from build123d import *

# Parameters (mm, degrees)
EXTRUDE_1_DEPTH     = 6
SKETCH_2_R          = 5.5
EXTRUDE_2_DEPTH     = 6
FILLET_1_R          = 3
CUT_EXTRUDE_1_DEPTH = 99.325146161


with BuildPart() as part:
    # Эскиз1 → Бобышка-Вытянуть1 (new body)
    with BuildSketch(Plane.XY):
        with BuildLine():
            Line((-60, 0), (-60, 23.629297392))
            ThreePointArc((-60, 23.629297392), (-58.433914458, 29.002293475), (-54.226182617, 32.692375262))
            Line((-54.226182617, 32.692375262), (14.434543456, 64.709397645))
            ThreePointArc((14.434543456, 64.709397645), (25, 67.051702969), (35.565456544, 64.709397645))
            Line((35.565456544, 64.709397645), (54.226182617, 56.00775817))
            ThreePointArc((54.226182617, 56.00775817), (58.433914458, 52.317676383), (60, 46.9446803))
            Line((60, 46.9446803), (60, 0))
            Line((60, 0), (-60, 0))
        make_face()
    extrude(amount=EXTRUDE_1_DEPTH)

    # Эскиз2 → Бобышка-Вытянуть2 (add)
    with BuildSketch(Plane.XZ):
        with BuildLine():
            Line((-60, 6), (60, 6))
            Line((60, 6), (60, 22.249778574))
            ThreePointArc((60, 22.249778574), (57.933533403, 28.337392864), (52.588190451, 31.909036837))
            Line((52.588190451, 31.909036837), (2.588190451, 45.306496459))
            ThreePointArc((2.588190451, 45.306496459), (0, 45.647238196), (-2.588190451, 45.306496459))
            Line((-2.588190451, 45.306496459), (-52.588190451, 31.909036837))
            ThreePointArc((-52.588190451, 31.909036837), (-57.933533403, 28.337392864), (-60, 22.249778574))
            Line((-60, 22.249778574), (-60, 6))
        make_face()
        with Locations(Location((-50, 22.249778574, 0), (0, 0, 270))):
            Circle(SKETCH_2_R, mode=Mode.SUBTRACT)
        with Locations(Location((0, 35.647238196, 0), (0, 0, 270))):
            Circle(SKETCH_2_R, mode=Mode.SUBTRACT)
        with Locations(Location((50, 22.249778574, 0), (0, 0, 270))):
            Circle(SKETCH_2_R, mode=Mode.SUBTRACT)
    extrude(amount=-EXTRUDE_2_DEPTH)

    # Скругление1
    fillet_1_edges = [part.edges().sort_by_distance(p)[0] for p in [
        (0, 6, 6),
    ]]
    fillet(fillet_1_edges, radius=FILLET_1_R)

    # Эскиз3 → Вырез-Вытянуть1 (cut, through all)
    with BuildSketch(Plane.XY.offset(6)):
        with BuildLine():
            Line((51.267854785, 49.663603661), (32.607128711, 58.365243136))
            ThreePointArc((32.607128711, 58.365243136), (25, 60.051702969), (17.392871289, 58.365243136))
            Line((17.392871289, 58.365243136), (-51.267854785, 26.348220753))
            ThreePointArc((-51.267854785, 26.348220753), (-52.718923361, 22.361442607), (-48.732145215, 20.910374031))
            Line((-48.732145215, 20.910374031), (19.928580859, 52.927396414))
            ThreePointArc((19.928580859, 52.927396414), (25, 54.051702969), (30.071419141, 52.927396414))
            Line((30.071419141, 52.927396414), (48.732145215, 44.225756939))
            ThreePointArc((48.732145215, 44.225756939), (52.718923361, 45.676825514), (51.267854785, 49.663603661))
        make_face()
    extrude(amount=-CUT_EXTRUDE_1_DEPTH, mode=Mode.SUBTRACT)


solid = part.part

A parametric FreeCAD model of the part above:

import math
import FreeCAD as App
import Part
import Sketcher
from FreeCAD import Vector
Q = App.Units.Quantity


def edges_at(feature, points):
    """Names of the edges that pass closest to the given points."""
    edges = feature.Shape.Edges
    near = lambda p: min(range(len(edges)), key=lambda i: edges[i].distToShape(Part.Vertex(*p))[0])
    return sorted({f"Edge{near(p) + 1}" for p in points})

doc = App.newDocument("Part")
body = doc.addObject("PartDesign::Body", "Body")

# Sketch on XY plane
sketch1 = body.newObject("Sketcher::SketchObject", "Sketch")
sketch1.AttachmentSupport = (doc.getObject("XY_Plane"), [""])
sketch1.MapMode = "FlatFace"
sketch1.addGeometry(Part.LineSegment(Vector(-60, 23.629297, 0), Vector(-60, 0, 0)), False)
sketch1.addGeometry(Part.LineSegment(Vector(-60, 0, 0), Vector(60, 0, 0)), False)
sketch1.addGeometry(Part.LineSegment(Vector(60, 0, 0), Vector(60, 46.94468, 0)), False)
sketch1.addGeometry(Part.ArcOfCircle(Part.Circle(Vector(50, 46.94468, 0), Vector(0, 0, 1), 10), math.radians(0), math.radians(65)), False)
sketch1.addGeometry(Part.LineSegment(Vector(54.226183, 56.007758, 0), Vector(35.565457, 64.709398, 0)), False)
sketch1.addGeometry(Part.ArcOfCircle(Part.Circle(Vector(25, 42.051703, 0), Vector(0, 0, 1), 25), math.radians(65), math.radians(115)), False)
sketch1.addGeometry(Part.LineSegment(Vector(14.434543, 64.709398, 0), Vector(-54.226183, 32.692375, 0)), False)
sketch1.addGeometry(Part.ArcOfCircle(Part.Circle(Vector(-50, 23.629297, 0), Vector(0, 0, 1), 10), math.radians(115), math.radians(180)), False)
sketch1.addConstraint(Sketcher.Constraint("Coincident", 0, 2, 1, 1))
sketch1.addConstraint(Sketcher.Constraint("Coincident", 1, 2, 2, 1))
sketch1.addConstraint(Sketcher.Constraint("Tangent", 2, 2, 3, 1))
sketch1.addConstraint(Sketcher.Constraint("Tangent", 3, 2, 4, 1))
sketch1.addConstraint(Sketcher.Constraint("Tangent", 4, 2, 5, 1))
sketch1.addConstraint(Sketcher.Constraint("Tangent", 5, 2, 6, 1))
sketch1.addConstraint(Sketcher.Constraint("Tangent", 6, 2, 7, 1))
sketch1.addConstraint(Sketcher.Constraint("Tangent", 7, 2, 0, 1))
sketch1.addConstraint(Sketcher.Constraint("Vertical", 0))
sketch1.addConstraint(Sketcher.Constraint("Horizontal", 1))
sketch1.addConstraint(Sketcher.Constraint("Vertical", 2))
sketch1.addConstraint(Sketcher.Constraint("Equal", 3, 7))
sketch1.addConstraint(Sketcher.Constraint("Symmetric", 0, 2, 1, 2, -1, 1))
sketch1.addConstraint(Sketcher.Constraint("Horizontal", 4, 2, 5, 2))
sketch1.addConstraint(Sketcher.Constraint("Radius", 3, 10.0))
sketch1.addConstraint(Sketcher.Constraint("Radius", 5, 25.0))
sketch1.addConstraint(Sketcher.Constraint("DistanceX", 1, 1, 1, 2, 120.0))
sketch1.addConstraint(Sketcher.Constraint("Angle", 4, Q("155 deg")))
sketch1.addConstraint(Sketcher.Constraint("DistanceX", -1, 1, 5, 3, 25.0))
sketch1.addConstraint(Sketcher.Constraint("DistanceY", 2, 1, 2, 2, 46.94468))
pad1 = body.newObject("PartDesign::Pad", "Pad")
pad1.Profile = sketch1
pad1.Length = 6

# Sketch on XZ plane
sketch2 = body.newObject("Sketcher::SketchObject", "Sketch001")
sketch2.AttachmentSupport = (doc.getObject("XZ_Plane"), [""])
sketch2.MapMode = "FlatFace"
sketch2.addGeometry(Part.LineSegment(Vector(-60, 6, 0), Vector(60, 6, 0)), False)
sketch2.addGeometry(Part.LineSegment(Vector(60, 6, 0), Vector(60, 22.249779, 0)), False)
sketch2.addGeometry(Part.ArcOfCircle(Part.Circle(Vector(50, 22.249779, 0), Vector(0, 0, 1), 10), math.radians(0), math.radians(75)), False)
sketch2.addGeometry(Part.LineSegment(Vector(52.58819, 31.909037, 0), Vector(2.58819, 45.306496, 0)), False)
sketch2.addGeometry(Part.ArcOfCircle(Part.Circle(Vector(0, 35.647238, 0), Vector(0, 0, 1), 10), math.radians(75), math.radians(105)), False)
sketch2.addGeometry(Part.LineSegment(Vector(-2.58819, 45.306496, 0), Vector(-52.58819, 31.909037, 0)), False)
sketch2.addGeometry(Part.ArcOfCircle(Part.Circle(Vector(-50, 22.249779, 0), Vector(0, 0, 1), 10), math.radians(105), math.radians(180)), False)
sketch2.addGeometry(Part.LineSegment(Vector(-60, 22.249779, 0), Vector(-60, 6, 0)), False)
sketch2.addGeometry(Part.Circle(Vector(-50, 22.249779, 0), Vector(0, 0, 1), 5.5), False)
sketch2.addGeometry(Part.Circle(Vector(50, 22.249779, 0), Vector(0, 0, 1), 5.5), False)
sketch2.addGeometry(Part.Circle(Vector(0, 35.647238, 0), Vector(0, 0, 1), 5.5), False)
sketch2.addConstraint(Sketcher.Constraint("Coincident", 0, 2, 1, 1))
sketch2.addConstraint(Sketcher.Constraint("Tangent", 1, 2, 2, 1))
sketch2.addConstraint(Sketcher.Constraint("Tangent", 2, 2, 3, 1))
sketch2.addConstraint(Sketcher.Constraint("Tangent", 3, 2, 4, 1))
sketch2.addConstraint(Sketcher.Constraint("Tangent", 4, 2, 5, 1))
sketch2.addConstraint(Sketcher.Constraint("Tangent", 5, 2, 6, 1))
sketch2.addConstraint(Sketcher.Constraint("Tangent", 6, 2, 7, 1))
sketch2.addConstraint(Sketcher.Constraint("Coincident", 7, 2, 0, 1))
sketch2.addConstraint(Sketcher.Constraint("Horizontal", 0))
sketch2.addConstraint(Sketcher.Constraint("Vertical", 1))
sketch2.addConstraint(Sketcher.Constraint("Vertical", 7))
sketch2.addConstraint(Sketcher.Constraint("Coincident", 8, 3, 6, 3))
sketch2.addConstraint(Sketcher.Constraint("Coincident", 9, 3, 2, 3))
sketch2.addConstraint(Sketcher.Constraint("Coincident", 10, 3, 4, 3))
sketch2.addConstraint(Sketcher.Constraint("Equal", 2, 4))
sketch2.addConstraint(Sketcher.Constraint("Equal", 4, 6))
sketch2.addConstraint(Sketcher.Constraint("Equal", 8, 9))
sketch2.addConstraint(Sketcher.Constraint("Equal", 9, 10))
sketch2.addConstraint(Sketcher.Constraint("Symmetric", 2, 3, 6, 3, -2))
sketch2.addConstraint(Sketcher.Constraint("PointOnObject", 4, 3, -2))
sketch2.addConstraint(Sketcher.Constraint("Diameter", 8, 11.0))
sketch2.addConstraint(Sketcher.Constraint("Radius", 2, 10.0))
sketch2.addConstraint(Sketcher.Constraint("DistanceX", 0, 1, 0, 2, 120.0))
sketch2.addConstraint(Sketcher.Constraint("Angle", 3, Q("165 deg")))
sketch2.addConstraint(Sketcher.Constraint("DistanceY", -1, 1, 0, 2, 6.0))
sketch2.addConstraint(Sketcher.Constraint("DistanceY", 1, 1, 1, 2, 16.249779))
pad2 = body.newObject("PartDesign::Pad", "Pad001")
pad2.Profile = sketch2
pad2.Length = 6
pad2.Reversed = True
doc.recompute()

fillet = body.newObject("PartDesign::Fillet", "Fillet")
fillet.Base = (pad2, edges_at(pad2, [(0, 6, 6)]))
fillet.Radius = 3

# Sketch on XY plane
sketch3 = body.newObject("Sketcher::SketchObject", "Sketch002")
sketch3.AttachmentSupport = (doc.getObject("XY_Plane"), [""])
sketch3.MapMode = "FlatFace"
sketch3.AttachmentOffset = App.Placement(Vector(0, 0, 6), App.Rotation())
sketch3.addGeometry(Part.LineSegment(Vector(51.267855, 49.663604, 0), Vector(32.607129, 58.365243, 0)), False)
sketch3.addGeometry(Part.ArcOfCircle(Part.Circle(Vector(25, 42.051703, 0), Vector(0, 0, 1), 18), math.radians(65), math.radians(115)), False)
sketch3.addGeometry(Part.LineSegment(Vector(17.392871, 58.365243, 0), Vector(-51.267855, 26.348221, 0)), False)
sketch3.addGeometry(Part.ArcOfCircle(Part.Circle(Vector(-50, 23.629297, 0), Vector(0, 0, 1), 3), math.radians(115), math.radians(295)), False)
sketch3.addGeometry(Part.LineSegment(Vector(-48.732145, 20.910374, 0), Vector(19.928581, 52.927396, 0)), False)
sketch3.addGeometry(Part.ArcOfCircle(Part.Circle(Vector(25, 42.051703, 0), Vector(0, 0, 1), 12), math.radians(65), math.radians(115)), False)
sketch3.addGeometry(Part.LineSegment(Vector(30.071419, 52.927396, 0), Vector(48.732145, 44.225757, 0)), False)
sketch3.addGeometry(Part.ArcOfCircle(Part.Circle(Vector(50, 46.94468, 0), Vector(0, 0, 1), 3), math.radians(-115), math.radians(65)), False)
sketch3.addConstraint(Sketcher.Constraint("Tangent", 0, 2, 1, 1))
sketch3.addConstraint(Sketcher.Constraint("Tangent", 1, 2, 2, 1))
sketch3.addConstraint(Sketcher.Constraint("Tangent", 2, 2, 3, 1))
sketch3.addConstraint(Sketcher.Constraint("Tangent", 3, 2, 4, 1))
sketch3.addConstraint(Sketcher.Constraint("Tangent", 4, 2, 5, 2))
sketch3.addConstraint(Sketcher.Constraint("Tangent", 5, 1, 6, 1))
sketch3.addConstraint(Sketcher.Constraint("Tangent", 6, 2, 7, 1))
sketch3.addConstraint(Sketcher.Constraint("Tangent", 7, 2, 0, 1))
sketch3.addConstraint(Sketcher.Constraint("Coincident", 5, 3, 1, 3))
sketch3.addConstraint(Sketcher.Constraint("Equal", 3, 7))
sketch3.addConstraint(Sketcher.Constraint("Parallel", 2, 4))
sketch3.addConstraint(Sketcher.Constraint("Horizontal", 0, 2, 1, 2))
sketch3.addConstraint(Sketcher.Constraint("Radius", 1, 18.0))
sketch3.addConstraint(Sketcher.Constraint("Radius", 3, 3.0))
sketch3.addConstraint(Sketcher.Constraint("Angle", 0, Q("155 deg")))
sketch3.addConstraint(Sketcher.Constraint("DistanceX", -1, 1, 1, 3, 25.0))
sketch3.addConstraint(Sketcher.Constraint("DistanceX", 3, 3, -1, 1, 50.0))
sketch3.addConstraint(Sketcher.Constraint("DistanceX", -1, 1, 7, 3, 50.0))
sketch3.addConstraint(Sketcher.Constraint("DistanceY", -1, 1, 7, 3, 46.94468))
pocket1 = body.newObject("PartDesign::Pocket", "Pocket")
pocket1.Profile = sketch3
pocket1.Type = "ThroughAll"

doc.recompute()
